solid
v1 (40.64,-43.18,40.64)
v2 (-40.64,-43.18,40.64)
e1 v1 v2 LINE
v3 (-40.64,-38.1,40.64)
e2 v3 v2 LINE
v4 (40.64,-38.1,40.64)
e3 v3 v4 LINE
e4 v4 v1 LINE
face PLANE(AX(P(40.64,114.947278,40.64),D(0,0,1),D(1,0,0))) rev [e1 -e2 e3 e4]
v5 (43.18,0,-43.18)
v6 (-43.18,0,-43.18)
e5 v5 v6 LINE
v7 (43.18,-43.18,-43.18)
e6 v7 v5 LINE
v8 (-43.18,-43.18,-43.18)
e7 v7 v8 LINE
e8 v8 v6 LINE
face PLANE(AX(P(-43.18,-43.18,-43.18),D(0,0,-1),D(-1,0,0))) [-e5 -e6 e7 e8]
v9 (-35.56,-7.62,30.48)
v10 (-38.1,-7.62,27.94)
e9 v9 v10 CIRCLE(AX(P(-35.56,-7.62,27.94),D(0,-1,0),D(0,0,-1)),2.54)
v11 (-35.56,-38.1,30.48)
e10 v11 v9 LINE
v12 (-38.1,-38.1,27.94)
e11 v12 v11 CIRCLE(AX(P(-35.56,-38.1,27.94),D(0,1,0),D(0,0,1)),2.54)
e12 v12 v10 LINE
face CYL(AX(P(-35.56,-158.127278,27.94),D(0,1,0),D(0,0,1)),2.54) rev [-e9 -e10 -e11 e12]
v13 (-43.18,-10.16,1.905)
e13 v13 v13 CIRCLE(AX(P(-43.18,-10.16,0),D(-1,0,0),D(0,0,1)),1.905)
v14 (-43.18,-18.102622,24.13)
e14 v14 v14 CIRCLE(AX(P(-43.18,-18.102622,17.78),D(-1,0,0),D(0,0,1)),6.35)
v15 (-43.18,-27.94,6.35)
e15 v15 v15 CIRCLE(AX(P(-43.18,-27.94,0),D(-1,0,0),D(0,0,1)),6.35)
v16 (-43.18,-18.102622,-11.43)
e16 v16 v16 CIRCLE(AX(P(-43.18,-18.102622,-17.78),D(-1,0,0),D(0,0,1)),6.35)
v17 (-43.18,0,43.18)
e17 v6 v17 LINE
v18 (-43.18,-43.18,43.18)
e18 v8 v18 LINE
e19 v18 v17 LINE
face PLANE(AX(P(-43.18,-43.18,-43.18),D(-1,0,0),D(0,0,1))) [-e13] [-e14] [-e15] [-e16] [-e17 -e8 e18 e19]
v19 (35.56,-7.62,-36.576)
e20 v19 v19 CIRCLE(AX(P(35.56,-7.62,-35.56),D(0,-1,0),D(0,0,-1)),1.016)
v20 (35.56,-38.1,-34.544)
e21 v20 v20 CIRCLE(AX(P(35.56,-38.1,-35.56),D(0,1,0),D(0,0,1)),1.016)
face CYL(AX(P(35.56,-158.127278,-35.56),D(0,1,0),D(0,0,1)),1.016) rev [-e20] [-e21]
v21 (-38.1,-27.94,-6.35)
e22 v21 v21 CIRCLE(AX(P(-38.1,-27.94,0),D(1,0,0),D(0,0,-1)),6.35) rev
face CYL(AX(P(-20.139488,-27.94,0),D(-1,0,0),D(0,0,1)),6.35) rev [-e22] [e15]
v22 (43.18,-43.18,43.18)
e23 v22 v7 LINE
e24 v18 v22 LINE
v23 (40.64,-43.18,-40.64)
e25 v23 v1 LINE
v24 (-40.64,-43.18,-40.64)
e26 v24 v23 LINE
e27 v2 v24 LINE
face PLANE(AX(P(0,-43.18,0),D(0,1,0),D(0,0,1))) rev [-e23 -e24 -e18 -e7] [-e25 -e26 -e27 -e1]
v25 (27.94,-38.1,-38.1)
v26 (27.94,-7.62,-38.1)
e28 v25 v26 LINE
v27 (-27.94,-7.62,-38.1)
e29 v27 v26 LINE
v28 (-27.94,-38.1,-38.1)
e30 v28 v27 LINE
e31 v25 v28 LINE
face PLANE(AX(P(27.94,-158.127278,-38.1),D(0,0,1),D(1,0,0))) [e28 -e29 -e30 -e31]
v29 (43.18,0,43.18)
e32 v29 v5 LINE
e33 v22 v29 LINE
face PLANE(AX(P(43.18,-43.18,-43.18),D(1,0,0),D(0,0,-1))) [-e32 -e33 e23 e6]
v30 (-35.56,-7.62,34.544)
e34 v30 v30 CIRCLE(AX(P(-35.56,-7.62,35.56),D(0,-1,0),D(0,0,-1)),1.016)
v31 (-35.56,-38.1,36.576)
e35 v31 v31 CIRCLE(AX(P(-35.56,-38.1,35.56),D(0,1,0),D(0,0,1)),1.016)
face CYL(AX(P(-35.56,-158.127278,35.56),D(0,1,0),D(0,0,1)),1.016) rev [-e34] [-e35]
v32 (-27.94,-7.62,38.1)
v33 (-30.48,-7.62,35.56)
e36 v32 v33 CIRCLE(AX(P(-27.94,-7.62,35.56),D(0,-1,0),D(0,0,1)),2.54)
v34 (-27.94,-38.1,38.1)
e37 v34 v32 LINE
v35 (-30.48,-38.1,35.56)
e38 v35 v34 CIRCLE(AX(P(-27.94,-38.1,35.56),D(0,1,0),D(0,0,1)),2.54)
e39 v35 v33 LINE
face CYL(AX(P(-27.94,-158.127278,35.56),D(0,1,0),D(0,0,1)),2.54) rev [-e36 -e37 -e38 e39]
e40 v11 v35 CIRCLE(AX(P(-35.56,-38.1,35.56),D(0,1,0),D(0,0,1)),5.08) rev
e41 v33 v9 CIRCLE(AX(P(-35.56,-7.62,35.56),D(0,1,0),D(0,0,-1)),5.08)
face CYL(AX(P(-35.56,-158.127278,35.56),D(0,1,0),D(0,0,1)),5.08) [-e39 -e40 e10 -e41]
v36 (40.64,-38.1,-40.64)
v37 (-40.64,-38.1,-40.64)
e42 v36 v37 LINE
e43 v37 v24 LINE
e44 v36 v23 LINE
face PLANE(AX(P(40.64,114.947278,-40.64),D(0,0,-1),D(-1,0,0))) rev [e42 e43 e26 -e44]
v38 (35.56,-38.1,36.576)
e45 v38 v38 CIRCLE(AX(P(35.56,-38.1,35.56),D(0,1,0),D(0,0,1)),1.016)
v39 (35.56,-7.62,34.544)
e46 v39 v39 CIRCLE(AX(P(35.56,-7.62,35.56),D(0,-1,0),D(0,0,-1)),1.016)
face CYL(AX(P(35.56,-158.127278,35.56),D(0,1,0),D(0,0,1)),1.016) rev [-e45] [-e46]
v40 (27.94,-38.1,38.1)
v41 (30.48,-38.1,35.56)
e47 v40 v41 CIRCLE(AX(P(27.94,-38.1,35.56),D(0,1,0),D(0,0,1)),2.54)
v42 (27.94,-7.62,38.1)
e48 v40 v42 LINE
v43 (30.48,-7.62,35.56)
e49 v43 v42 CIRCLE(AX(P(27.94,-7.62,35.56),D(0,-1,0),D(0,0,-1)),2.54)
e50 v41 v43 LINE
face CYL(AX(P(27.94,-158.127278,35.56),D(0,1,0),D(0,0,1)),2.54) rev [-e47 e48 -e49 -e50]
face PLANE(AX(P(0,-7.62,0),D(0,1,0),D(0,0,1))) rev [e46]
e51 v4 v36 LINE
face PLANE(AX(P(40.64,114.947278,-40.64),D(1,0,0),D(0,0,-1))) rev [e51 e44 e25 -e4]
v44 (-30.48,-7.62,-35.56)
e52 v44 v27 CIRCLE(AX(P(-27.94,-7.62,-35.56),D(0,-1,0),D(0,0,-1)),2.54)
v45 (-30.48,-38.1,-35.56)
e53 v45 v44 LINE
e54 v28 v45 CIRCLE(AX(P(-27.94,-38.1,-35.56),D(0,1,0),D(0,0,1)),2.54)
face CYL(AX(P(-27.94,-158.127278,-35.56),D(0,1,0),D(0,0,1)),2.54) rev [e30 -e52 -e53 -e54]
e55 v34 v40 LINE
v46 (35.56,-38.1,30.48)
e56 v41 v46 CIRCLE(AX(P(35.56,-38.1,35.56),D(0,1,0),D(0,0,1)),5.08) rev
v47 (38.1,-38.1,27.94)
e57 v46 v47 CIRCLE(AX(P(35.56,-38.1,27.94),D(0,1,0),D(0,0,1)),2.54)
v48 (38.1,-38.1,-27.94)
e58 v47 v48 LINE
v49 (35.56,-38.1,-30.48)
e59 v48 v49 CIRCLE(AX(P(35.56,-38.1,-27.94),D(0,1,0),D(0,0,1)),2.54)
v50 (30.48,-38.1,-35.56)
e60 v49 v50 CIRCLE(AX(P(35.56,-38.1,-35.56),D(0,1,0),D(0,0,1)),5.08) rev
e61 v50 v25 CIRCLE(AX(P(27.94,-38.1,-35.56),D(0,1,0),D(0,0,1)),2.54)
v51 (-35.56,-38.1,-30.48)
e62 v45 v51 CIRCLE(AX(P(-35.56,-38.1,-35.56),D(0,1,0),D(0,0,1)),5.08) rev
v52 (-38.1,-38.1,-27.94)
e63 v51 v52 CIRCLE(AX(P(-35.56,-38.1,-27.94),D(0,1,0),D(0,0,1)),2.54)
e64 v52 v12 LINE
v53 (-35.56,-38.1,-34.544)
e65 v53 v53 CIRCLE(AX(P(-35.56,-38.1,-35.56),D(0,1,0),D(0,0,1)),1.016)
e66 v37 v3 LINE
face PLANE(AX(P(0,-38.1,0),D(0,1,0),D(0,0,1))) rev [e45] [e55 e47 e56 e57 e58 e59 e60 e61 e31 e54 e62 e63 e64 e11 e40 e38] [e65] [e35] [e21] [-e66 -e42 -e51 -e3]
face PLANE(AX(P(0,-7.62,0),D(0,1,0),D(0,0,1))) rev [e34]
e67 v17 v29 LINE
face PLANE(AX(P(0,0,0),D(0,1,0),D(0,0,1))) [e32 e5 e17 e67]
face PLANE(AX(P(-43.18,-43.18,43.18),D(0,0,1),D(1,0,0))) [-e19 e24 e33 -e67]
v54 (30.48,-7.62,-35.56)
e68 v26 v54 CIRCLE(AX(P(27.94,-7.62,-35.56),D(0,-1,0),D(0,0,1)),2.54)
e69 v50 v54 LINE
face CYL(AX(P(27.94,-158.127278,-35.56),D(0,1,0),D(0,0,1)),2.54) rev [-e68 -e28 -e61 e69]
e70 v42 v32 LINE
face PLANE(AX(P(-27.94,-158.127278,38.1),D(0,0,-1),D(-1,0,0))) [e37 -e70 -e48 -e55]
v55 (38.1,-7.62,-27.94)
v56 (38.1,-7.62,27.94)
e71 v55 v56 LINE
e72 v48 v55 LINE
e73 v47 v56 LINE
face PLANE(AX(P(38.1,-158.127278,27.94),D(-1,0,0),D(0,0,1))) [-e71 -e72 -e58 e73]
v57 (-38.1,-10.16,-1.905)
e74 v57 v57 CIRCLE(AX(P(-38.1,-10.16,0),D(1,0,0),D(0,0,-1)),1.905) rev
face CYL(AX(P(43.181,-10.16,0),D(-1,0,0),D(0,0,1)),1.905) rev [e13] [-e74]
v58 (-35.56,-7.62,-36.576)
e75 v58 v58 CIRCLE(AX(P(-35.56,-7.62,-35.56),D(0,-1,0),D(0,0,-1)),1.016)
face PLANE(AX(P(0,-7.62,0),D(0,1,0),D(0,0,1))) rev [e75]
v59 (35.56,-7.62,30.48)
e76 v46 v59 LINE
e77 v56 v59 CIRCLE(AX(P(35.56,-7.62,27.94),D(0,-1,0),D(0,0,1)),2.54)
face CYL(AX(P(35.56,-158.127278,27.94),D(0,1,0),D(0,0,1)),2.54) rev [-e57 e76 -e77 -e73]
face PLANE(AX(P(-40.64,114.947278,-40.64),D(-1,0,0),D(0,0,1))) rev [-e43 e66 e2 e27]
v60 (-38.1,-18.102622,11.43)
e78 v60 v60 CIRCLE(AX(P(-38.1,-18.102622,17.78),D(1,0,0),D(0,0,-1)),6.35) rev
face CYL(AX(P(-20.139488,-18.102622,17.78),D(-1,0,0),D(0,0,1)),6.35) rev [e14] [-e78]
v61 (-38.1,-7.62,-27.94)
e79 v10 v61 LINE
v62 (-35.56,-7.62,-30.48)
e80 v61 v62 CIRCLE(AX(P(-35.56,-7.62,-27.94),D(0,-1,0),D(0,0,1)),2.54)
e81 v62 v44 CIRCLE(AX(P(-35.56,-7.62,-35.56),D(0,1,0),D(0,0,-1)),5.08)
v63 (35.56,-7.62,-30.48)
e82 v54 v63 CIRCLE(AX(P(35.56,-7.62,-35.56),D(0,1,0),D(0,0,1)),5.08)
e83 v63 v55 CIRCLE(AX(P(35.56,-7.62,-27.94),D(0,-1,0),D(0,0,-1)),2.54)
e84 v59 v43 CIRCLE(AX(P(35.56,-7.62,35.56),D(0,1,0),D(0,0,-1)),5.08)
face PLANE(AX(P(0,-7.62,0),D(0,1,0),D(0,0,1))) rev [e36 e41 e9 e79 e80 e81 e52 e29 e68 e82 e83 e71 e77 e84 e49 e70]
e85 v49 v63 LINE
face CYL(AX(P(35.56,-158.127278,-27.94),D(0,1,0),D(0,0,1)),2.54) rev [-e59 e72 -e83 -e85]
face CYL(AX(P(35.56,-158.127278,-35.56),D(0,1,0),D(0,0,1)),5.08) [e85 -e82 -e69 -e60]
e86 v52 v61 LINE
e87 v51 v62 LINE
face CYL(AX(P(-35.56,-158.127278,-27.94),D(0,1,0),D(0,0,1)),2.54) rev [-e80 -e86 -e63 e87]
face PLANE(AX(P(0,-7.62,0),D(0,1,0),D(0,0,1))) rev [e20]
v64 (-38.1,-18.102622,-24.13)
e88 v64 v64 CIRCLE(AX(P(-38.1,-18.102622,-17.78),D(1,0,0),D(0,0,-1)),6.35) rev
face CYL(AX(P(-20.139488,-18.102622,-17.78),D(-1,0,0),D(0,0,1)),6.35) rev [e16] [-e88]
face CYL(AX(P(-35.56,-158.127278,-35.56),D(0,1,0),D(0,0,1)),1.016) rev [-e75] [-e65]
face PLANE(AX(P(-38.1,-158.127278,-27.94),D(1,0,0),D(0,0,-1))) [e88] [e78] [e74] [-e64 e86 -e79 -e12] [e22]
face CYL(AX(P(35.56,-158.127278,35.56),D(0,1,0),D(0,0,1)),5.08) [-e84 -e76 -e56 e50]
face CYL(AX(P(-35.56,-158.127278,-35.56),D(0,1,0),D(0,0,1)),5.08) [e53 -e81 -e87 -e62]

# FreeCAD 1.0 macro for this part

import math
import FreeCAD as App
import Part
import Sketcher

V = App.Vector
Q = App.Units.Quantity


def add_polygon(sketch, points):
    """Adds a closed chain of lines whose ends are joined by coincident constraints."""
    first, n = sketch.GeometryCount, len(points)
    for a, b in zip(points, points[1:] + points[:1]):
        sketch.addGeometry(Part.LineSegment(App.Vector(*a, 0), App.Vector(*b, 0)), False)
    for i in range(n):
        sketch.addConstraint(Sketcher.Constraint("Coincident", first + i, 2, first + (i + 1) % n, 1))

doc = App.newDocument("Part")
body = doc.addObject("PartDesign::Body", "Body")

# Sketch on XZ plane
sketch1 = body.newObject("Sketcher::SketchObject", "Sketch")
sketch1.AttachmentSupport = (doc.getObject("XZ_Plane"), [""])
sketch1.MapMode = "FlatFace"
add_polygon(sketch1, [(-43, -43), (-43, 43), (43, 43), (43, -43)])  # lines 0-3
sketch1.addConstraint([
    Sketcher.Constraint("Vertical", 0),
    Sketcher.Constraint("Horizontal", 1),
    Sketcher.Constraint("Vertical", 2),
    Sketcher.Constraint("Horizontal", 3),
    Sketcher.Constraint("Symmetric", 0, 2, 2, 2, -1, 1),
    Sketcher.Constraint("Equal", 3, 0),
    Sketcher.Constraint("DistanceX", 1, 1, 1, 2, Q("3.4 in")),
])
pad1 = body.newObject("PartDesign::Pad", "Pad")
pad1.Profile = sketch1
pad1.Length = Q("1.7 in")

# Sketch on XZ plane
sketch2 = body.newObject("Sketcher::SketchObject", "Sketch001")
sketch2.AttachmentSupport = (doc.getObject("XZ_Plane"), [""])
sketch2.MapMode = "FlatFace"
sketch2.AttachmentOffset = App.Placement(V(0, 0, 1.7 * 25.4), App.Rotation())
add_polygon(sketch2, [(41, -41), (41, 41), (-41, 41), (-41, -41)])  # lines 0-3
sketch2.addConstraint([
    Sketcher.Constraint("Vertical", 0),
    Sketcher.Constraint("Horizontal", 1),
    Sketcher.Constraint("Vertical", 2),
    Sketcher.Constraint("Horizontal", 3),
    Sketcher.Constraint("Symmetric", 0, 2, 2, 2, -1, 1),
    Sketcher.Constraint("Equal", 3, 0),
    Sketcher.Constraint("DistanceX", 1, 2, 1, 1, Q("3.2 in")),
])
pocket1 = body.newObject("PartDesign::Pocket", "Pocket")
pocket1.Profile = sketch2
pocket1.Length = Q("1.4 in")

# Sketch on XZ plane
sketch3 = body.newObject("Sketcher::SketchObject", "Sketch002")
sketch3.AttachmentSupport = (doc.getObject("XZ_Plane"), [""])
sketch3.MapMode = "FlatFace"
sketch3.AttachmentOffset = App.Placement(V(0, 0, 0.3 * 25.4), App.Rotation())
add_polygon(sketch3, [(40.6, -40.6), (40.6, 40.6), (-40.6, 40.6), (-40.6, -40.6)])  # lines 0-3
sketch3.addGeometry(Part.Circle(V(35.6, 35.6, 0), V(0, 0, 1), 1), False)  # 4
sketch3.addGeometry(Part.Circle(V(-35.6, 35.6, 0), V(0, 0, 1), 1), False)  # 5
sketch3.addGeometry(Part.Circle(V(35.6, -35.6, 0), V(0, 0, 1), 1), False)  # 6
sketch3.addGeometry(Part.ArcOfCircle(Part.Circle(V(27.9, -35.6, 0), V(0, 0, 1), 2.5), math.radians(-90), math.radians(0)), False)  # 7
sketch3.addGeometry(Part.LineSegment(V(27.9, -38.1, 0), V(-27.9, -38.1, 0)), False)  # 8
sketch3.addGeometry(Part.ArcOfCircle(Part.Circle(V(-27.9, -35.6, 0), V(0, 0, 1), 2.5), math.radians(-180), math.radians(-90)), False)  # 9
sketch3.addGeometry(Part.ArcOfCircle(Part.Circle(V(-35.6, -35.6, 0), V(0, 0, 1), 5.1), math.radians(0), math.radians(90)), False)  # 10
sketch3.addGeometry(Part.ArcOfCircle(Part.Circle(V(-35.6, -27.9, 0), V(0, 0, 1), 2.5), math.radians(-180), math.radians(-90)), False)  # 11
sketch3.addGeometry(Part.LineSegment(V(-38.1, -27.9, 0), V(-38.1, 27.9, 0)), False)  # 12
sketch3.addGeometry(Part.ArcOfCircle(Part.Circle(V(-35.6, 27.9, 0), V(0, 0, 1), 2.5), math.radians(90), math.radians(180)), False)  # 13
sketch3.addGeometry(Part.ArcOfCircle(Part.Circle(V(-35.6, 35.6, 0), V(0, 0, 1), 5.1), math.radians(-90), math.radians(0)), False)  # 14
sketch3.addGeometry(Part.ArcOfCircle(Part.Circle(V(-27.9, 35.6, 0), V(0, 0, 1), 2.5), math.radians(90), math.radians(180)), False)  # 15
sketch3.addGeometry(Part.LineSegment(V(-27.9, 38.1, 0), V(27.9, 38.1, 0)), False)  # 16
sketch3.addGeometry(Part.ArcOfCircle(Part.Circle(V(27.9, 35.6, 0), V(0, 0, 1), 2.5), math.radians(0), math.radians(90)), False)  # 17
sketch3.addGeometry(Part.ArcOfCircle(Part.Circle(V(35.6, 35.6, 0), V(0, 0, 1), 5.1), math.radians(-180), math.radians(-90)), False)  # 18
sketch3.addGeometry(Part.ArcOfCircle(Part.Circle(V(35.6, 27.9, 0), V(0, 0, 1), 2.5), math.radians(0), math.radians(90)), False)  # 19
sketch3.addGeometry(Part.LineSegment(V(38.1, 27.9, 0), V(38.1, -27.9, 0)), False)  # 20
sketch3.addGeometry(Part.ArcOfCircle(Part.Circle(V(35.6, -27.9, 0), V(0, 0, 1), 2.5), math.radians(-90), math.radians(0)), False)  # 21
sketch3.addGeometry(Part.ArcOfCircle(Part.Circle(V(35.6, -35.6, 0), V(0, 0, 1), 5.1), math.radians(90), math.radians(180)), False)  # 22
sketch3.addGeometry(Part.Circle(V(-35.6, -35.6, 0), V(0, 0, 1), 1), False)  # 23
sketch3.addConstraint([
    Sketcher.Constraint("Tangent", 7, 1, 8, 1),
    Sketcher.Constraint("Tangent", 8, 2, 9, 2),
    Sketcher.Constraint("Tangent", 9, 1, 10, 1),
    Sketcher.Constraint("Tangent", 10, 2, 11, 2),
    Sketcher.Constraint("Tangent", 11, 1, 12, 1),
    Sketcher.Constraint("Tangent", 12, 2, 13, 2),
    Sketcher.Constraint("Tangent", 13, 1, 14, 1),
    Sketcher.Constraint("Tangent", 14, 2, 15, 2),
    Sketcher.Constraint("Tangent", 15, 1, 16, 1),
    Sketcher.Constraint("Tangent", 16, 2, 17, 2),
    Sketcher.Constraint("Tangent", 17, 1, 18, 1),
    Sketcher.Constraint("Tangent", 18, 2, 19, 2),
    Sketcher.Constraint("Tangent", 19, 1, 20, 1),
    Sketcher.Constraint("Tangent", 20, 2, 21, 2),
    Sketcher.Constraint("Tangent", 21, 1, 22, 1),
    Sketcher.Constraint("Tangent", 22, 2, 7, 2),
    Sketcher.Constraint("Vertical", 0),
    Sketcher.Constraint("Horizontal", 1),
    Sketcher.Constraint("Vertical", 2),
    Sketcher.Constraint("Horizontal", 3),
    Sketcher.Constraint("Horizontal", 8),
    Sketcher.Constraint("Vertical", 12),
    Sketcher.Constraint("Horizontal", 16),
    Sketcher.Constraint("Vertical", 20),
    Sketcher.Constraint("Coincident", 14, 3, 5, 3),
    Sketcher.Constraint("Coincident", 18, 3, 4, 3),
    Sketcher.Constraint("Coincident", 22, 3, 6, 3),
    Sketcher.Constraint("Coincident", 23, 3, 10, 3),
    Sketcher.Constraint("Equal", 4, 5),
    Sketcher.Constraint("Equal", 5, 6),
    Sketcher.Constraint("Equal", 7, 9),
    Sketcher.Constraint("Equal", 9, 11),
    Sketcher.Constraint("Equal", 11, 13),
    Sketcher.Constraint("Equal", 10, 14),
    Sketcher.Constraint("Equal", 13, 15),
    Sketcher.Constraint("Equal", 15, 17),
    Sketcher.Constraint("Equal", 14, 18),
    Sketcher.Constraint("Equal", 17, 19),
    Sketcher.Constraint("Equal", 19, 21),
    Sketcher.Constraint("Equal", 18, 22),
    Sketcher.Constraint("Equal", 6, 23),
    Sketcher.Constraint("Symmetric", 5, 3, 6, 3, -1, 1),
    Sketcher.Constraint("Symmetric", 4, 3, 10, 3, -1, 1),
    Sketcher.Constraint("Symmetric", 0, 2, 2, 2, -1, 1),
    Sketcher.Constraint("Symmetric", 4, 3, 5, 3, -2),
    Sketcher.Constraint("Horizontal", 6, 3, 7, 3),
    Sketcher.Constraint("Horizontal", 14, 3, 15, 3),
    Sketcher.Constraint("Vertical", 10, 3, 11, 3),
    Sketcher.Constraint("Vertical", 18, 3, 19, 3),
    Sketcher.Constraint("Equal", 3, 0),
    Sketcher.Constraint("Equal", 16, 12),
    Sketcher.Constraint("Radius", 7, Q("0.1 in")),
    Sketcher.Constraint("Radius", 10, Q("0.2 in")),
    Sketcher.Constraint("Diameter", 4, Q("0.08 in")),
    Sketcher.Constraint("DistanceX", 1, 2, 1, 1, Q("3.2 in")),
    Sketcher.Constraint("DistanceX", 8, 2, 8, 1, Q("2.2 in")),
])
pad2 = body.newObject("PartDesign::Pad", "Pad001")
pad2.Profile = sketch3
pad2.Length = Q("1.2 in")

# Sketch on YZ plane
sketch4 = body.newObject("Sketcher::SketchObject", "Sketch003")
sketch4.AttachmentSupport = (doc.getObject("YZ_Plane"), [""])
sketch4.MapMode = "FlatFace"
sketch4.AttachmentOffset = App.Placement(V(0, 0, -1.7 * 25.4), App.Rotation())
sketch4.addGeometry([
    Part.Circle(V(-28, 0, 0), V(0, 0, 1), 6),
    Part.Circle(V(-18, -18, 0), V(0, 0, 1), 6),
    Part.Circle(V(-18, 18, 0), V(0, 0, 1), 6),
], False)
sketch4.addConstraint([
    Sketcher.Constraint("Equal", 0, 1),
    Sketcher.Constraint("Equal", 1, 2),
    Sketcher.Constraint("Symmetric", 1, 3, 2, 3, -1),
    Sketcher.Constraint("PointOnObject", 0, 3, -1),
    Sketcher.Constraint("Diameter", 0, Q("0.5 in")),
    Sketcher.Constraint("DistanceX", 0, 3, -1, 1, Q("1.1 in")),
    Sketcher.Constraint("DistanceY", 1, 3, -1, 1, Q("0.7 in")),
    Sketcher.Constraint("DistanceX", 1, 3, -1, 1, 18.102622),
])
pocket2 = body.newObject("PartDesign::Pocket", "Pocket001")
pocket2.Profile = sketch4
pocket2.Length = Q("0.2 in")
pocket2.Reversed = True

# Sketch on YZ plane
sketch5 = body.newObject("Sketcher::SketchObject", "Sketch004")
sketch5.AttachmentSupport = (doc.getObject("YZ_Plane"), [""])
sketch5.MapMode = "FlatFace"
sketch5.AttachmentOffset = App.Placement(V(0, 0, -1.7 * 25.4), App.Rotation())
sketch5.addGeometry(Part.Circle(V(-10.2, 0, 0), V(0, 0, 1), 1.9), False)
sketch5.addConstraint([
    Sketcher.Constraint("PointOnObject", 0, 3, -1),
    Sketcher.Constraint("Diameter", 0, Q("0.15 in")),
    Sketcher.Constraint("DistanceX", 0, 3, -1, 1, Q("0.4 in")),
])
pocket3 = body.newObject("PartDesign::Pocket", "Pocket002")
pocket3.Profile = sketch5
pocket3.Type = "UpToFirst"
pocket3.Reversed = True

doc.recompute()
